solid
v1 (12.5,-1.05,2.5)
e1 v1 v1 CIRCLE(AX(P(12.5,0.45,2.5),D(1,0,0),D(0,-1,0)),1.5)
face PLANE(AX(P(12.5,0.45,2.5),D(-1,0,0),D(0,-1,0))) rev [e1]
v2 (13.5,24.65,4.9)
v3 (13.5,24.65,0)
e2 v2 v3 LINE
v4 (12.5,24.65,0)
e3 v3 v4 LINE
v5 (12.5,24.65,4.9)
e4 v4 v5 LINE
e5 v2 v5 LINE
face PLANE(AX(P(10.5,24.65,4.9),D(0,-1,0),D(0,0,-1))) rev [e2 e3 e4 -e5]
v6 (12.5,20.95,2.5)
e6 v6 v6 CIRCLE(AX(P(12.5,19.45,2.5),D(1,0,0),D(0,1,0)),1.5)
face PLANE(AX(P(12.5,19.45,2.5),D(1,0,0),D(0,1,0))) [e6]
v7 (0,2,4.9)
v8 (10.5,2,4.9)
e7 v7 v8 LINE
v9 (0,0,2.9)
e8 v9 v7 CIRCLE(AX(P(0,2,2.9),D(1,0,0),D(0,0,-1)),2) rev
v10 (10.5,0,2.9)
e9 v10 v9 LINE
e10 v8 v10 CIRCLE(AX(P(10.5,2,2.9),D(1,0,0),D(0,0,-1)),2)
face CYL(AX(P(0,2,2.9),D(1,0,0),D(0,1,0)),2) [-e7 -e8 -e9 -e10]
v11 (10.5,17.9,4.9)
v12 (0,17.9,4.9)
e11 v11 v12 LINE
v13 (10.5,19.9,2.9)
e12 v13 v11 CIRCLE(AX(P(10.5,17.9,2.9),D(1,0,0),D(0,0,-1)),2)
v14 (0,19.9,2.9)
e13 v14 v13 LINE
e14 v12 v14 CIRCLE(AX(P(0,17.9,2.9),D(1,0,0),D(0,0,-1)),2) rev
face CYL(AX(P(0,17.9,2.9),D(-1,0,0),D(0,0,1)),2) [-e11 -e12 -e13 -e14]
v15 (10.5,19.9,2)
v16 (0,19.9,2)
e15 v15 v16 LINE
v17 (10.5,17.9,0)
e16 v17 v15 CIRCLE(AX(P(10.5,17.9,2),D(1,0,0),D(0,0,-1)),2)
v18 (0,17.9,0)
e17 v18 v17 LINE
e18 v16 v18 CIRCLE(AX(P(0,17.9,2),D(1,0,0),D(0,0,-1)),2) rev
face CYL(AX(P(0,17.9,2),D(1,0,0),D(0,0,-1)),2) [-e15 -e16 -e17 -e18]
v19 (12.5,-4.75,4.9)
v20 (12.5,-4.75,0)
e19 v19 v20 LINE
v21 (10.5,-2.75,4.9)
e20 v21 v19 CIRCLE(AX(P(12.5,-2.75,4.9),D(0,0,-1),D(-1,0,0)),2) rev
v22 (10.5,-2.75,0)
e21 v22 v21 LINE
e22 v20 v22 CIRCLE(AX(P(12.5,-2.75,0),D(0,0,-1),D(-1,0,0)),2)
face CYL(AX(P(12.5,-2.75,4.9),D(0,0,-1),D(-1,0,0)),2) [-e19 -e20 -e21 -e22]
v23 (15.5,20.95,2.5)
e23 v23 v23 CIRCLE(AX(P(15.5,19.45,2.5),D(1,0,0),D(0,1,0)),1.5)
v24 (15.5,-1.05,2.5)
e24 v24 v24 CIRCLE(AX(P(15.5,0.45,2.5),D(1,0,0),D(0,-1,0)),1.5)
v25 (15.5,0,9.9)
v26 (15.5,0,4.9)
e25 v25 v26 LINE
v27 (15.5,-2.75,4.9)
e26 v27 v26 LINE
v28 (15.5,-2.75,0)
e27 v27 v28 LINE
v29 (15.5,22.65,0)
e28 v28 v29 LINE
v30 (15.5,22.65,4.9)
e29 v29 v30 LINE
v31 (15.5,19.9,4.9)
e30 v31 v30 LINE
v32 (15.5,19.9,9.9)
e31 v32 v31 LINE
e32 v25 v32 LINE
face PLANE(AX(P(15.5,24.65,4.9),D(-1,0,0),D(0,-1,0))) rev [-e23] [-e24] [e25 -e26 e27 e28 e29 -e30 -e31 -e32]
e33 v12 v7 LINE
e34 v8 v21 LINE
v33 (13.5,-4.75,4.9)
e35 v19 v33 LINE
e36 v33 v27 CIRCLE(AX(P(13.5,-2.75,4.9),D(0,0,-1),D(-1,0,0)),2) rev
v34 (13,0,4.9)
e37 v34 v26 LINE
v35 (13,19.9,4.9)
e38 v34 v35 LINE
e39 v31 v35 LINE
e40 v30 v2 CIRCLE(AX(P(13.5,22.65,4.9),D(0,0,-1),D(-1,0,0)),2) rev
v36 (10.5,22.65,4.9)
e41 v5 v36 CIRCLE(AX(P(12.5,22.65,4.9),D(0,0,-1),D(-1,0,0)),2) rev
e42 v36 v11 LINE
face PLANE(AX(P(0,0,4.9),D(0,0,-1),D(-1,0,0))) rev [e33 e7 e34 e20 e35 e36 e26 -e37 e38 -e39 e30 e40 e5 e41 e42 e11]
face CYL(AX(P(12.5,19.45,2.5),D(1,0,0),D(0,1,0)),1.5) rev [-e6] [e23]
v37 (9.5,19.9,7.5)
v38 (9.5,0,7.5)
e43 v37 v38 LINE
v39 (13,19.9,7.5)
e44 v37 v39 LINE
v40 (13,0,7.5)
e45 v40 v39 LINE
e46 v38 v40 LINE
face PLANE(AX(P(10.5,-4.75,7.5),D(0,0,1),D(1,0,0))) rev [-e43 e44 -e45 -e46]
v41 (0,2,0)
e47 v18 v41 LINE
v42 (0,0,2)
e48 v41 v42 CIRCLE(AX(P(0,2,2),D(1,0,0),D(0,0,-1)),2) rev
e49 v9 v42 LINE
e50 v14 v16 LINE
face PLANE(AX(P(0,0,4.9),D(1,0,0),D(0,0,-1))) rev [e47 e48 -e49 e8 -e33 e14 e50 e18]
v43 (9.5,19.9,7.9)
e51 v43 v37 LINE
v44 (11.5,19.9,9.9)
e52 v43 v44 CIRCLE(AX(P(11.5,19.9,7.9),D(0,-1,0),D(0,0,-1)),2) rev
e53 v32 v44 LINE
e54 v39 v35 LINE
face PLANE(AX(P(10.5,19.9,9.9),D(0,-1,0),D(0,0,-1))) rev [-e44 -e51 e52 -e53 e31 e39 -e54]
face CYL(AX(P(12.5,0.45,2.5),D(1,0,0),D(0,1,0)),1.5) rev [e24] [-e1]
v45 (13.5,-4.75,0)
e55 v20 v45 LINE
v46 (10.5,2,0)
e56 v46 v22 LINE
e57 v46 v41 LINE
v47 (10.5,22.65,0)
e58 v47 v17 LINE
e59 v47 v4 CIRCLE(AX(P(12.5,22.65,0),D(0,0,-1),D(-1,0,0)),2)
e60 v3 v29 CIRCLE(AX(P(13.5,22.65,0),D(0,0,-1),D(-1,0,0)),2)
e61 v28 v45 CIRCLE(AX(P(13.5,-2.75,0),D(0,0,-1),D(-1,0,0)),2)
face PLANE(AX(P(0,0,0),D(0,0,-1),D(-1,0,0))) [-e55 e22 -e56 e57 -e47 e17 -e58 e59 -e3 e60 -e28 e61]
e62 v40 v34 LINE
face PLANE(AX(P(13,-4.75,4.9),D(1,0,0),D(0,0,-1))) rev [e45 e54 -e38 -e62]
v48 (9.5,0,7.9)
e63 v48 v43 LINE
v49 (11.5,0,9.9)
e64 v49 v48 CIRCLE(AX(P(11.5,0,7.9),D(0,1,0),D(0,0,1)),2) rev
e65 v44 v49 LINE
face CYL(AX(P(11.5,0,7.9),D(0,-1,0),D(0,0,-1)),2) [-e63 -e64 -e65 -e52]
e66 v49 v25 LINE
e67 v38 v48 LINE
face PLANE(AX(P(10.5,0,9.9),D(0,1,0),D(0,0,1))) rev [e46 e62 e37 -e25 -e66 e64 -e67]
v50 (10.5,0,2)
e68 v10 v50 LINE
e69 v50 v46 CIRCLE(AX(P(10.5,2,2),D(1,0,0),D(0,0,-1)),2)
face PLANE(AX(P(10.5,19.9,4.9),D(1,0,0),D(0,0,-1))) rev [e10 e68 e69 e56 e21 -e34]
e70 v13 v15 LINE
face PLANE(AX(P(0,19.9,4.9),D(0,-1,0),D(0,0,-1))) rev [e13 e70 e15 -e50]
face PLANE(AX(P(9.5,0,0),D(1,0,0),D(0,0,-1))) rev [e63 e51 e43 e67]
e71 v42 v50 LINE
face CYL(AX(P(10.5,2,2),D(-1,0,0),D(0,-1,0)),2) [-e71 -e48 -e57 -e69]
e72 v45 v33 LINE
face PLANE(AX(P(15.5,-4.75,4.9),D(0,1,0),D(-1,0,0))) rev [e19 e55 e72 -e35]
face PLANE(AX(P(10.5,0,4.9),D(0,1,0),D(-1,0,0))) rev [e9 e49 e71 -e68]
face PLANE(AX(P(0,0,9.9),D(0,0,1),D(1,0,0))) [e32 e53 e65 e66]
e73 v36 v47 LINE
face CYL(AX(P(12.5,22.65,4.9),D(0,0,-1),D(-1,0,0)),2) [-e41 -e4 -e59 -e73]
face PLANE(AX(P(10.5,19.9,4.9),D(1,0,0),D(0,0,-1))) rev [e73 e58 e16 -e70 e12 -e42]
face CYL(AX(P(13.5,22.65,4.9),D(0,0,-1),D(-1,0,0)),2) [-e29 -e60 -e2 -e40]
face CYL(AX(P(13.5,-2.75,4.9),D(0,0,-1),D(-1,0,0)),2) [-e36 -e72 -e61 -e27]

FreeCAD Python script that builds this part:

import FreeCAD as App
import Part
import Sketcher
from FreeCAD import Vector


def edges_at(feature, points):
    """Names of the edges that pass closest to the given points."""
    edges = feature.Shape.Edges
    near = lambda p: min(range(len(edges)), key=lambda i: edges[i].distToShape(Part.Vertex(*p))[0])
    return sorted({f"Edge{near(p) + 1}" for p in points})

doc = App.newDocument("Part")
body = doc.addObject("PartDesign::Body", "Body")

# Sketch on XY plane
sketch1 = body.newObject("Sketcher::SketchObject", "Sketch")
sketch1.AttachmentSupport = (doc.getObject("XY_Plane"), [""])
sketch1.MapMode = "FlatFace"
sketch1.addGeometry([
    Part.LineSegment(Vector(0, 19.9, 0), Vector(0, 0, 0)),  # 0
    Part.LineSegment(Vector(0, 0, 0), Vector(10.5, 0, 0)),  # 1
    Part.LineSegment(Vector(10.5, 0, 0), Vector(10.5, -4.75, 0)),  # 2
    Part.LineSegment(Vector(10.5, -4.75, 0), Vector(15.5, -4.75, 0)),  # 3
    Part.LineSegment(Vector(15.5, -4.75, 0), Vector(15.5, 24.65, 0)),  # 4
    Part.LineSegment(Vector(15.5, 24.65, 0), Vector(10.5, 24.65, 0)),  # 5
    Part.LineSegment(Vector(10.5, 24.65, 0), Vector(10.5, 19.9, 0)),  # 6
    Part.LineSegment(Vector(10.5, 19.9, 0), Vector(0, 19.9, 0)),  # 7
], False)
sketch1.addConstraint([
    Sketcher.Constraint("Coincident", 0, 2, 1, 1),
    Sketcher.Constraint("Coincident", 1, 2, 2, 1),
    Sketcher.Constraint("Coincident", 2, 2, 3, 1),
    Sketcher.Constraint("Coincident", 3, 2, 4, 1),
    Sketcher.Constraint("Coincident", 4, 2, 5, 1),
    Sketcher.Constraint("Coincident", 5, 2, 6, 1),
    Sketcher.Constraint("Coincident", 6, 2, 7, 1),
    Sketcher.Constraint("Coincident", 7, 2, 0, 1),
    Sketcher.Constraint("Vertical", 0),
    Sketcher.Constraint("Horizontal", 1),
    Sketcher.Constraint("Vertical", 2),
    Sketcher.Constraint("Horizontal", 3),
    Sketcher.Constraint("Vertical", 4),
    Sketcher.Constraint("Horizontal", 5),
    Sketcher.Constraint("Vertical", 6),
    Sketcher.Constraint("Horizontal", 7),
    Sketcher.Constraint("Coincident", 0, 2, -1, 1),
    Sketcher.Constraint("Vertical", 2, 2, 5, 2),
    Sketcher.Constraint("Equal", 2, 6),
    Sketcher.Constraint("DistanceX", 3, 1, 3, 2, 5.0),
    Sketcher.Constraint("DistanceX", 1, 1, 1, 2, 10.5),
    Sketcher.Constraint("DistanceY", 0, 2, 0, 1, 19.9),
    Sketcher.Constraint("DistanceY", 4, 1, 4, 2, 29.4),
])
pad1 = body.newObject("PartDesign::Pad", "Pad")
pad1.Profile = sketch1
pad1.Length = 4.9
doc.recompute()

fillet = body.newObject("PartDesign::Fillet", "Fillet")
fillet.Base = (pad1, edges_at(pad1, [
    (5.25, 0, 0),
    (5.25, 19.9, 4.9),
    (5.25, 0, 4.9),
    (5.25, 19.9, 0),
]))
fillet.Radius = 2

# Sketch on YZ plane
sketch2 = body.newObject("Sketcher::SketchObject", "Sketch001")
sketch2.AttachmentSupport = (doc.getObject("YZ_Plane"), [""])
sketch2.MapMode = "FlatFace"
sketch2.AttachmentOffset = App.Placement(Vector(0, 0, 15.5), App.Rotation())
sketch2.addGeometry([
    Part.Circle(Vector(19.45, 2.5, 0), Vector(0, 0, 1), 1.5),
    Part.Circle(Vector(0.45, 2.5, 0), Vector(0, 0, 1), 1.5),
], False)
sketch2.addConstraint([
    Sketcher.Constraint("Equal", 0, 1),
    Sketcher.Constraint("Horizontal", 0, 3, 1, 3),
    Sketcher.Constraint("Diameter", 0, 3.0),
    Sketcher.Constraint("DistanceX", 1, 3, 0, 3, 19.0),
    Sketcher.Constraint("DistanceY", -1, 1, 0, 3, 2.5),
    Sketcher.Constraint("DistanceX", -1, 1, 0, 3, 19.45),
])
pocket1 = body.newObject("PartDesign::Pocket", "Pocket")
pocket1.Profile = sketch2
pocket1.Length = 3

# Sketch on XY plane
sketch3 = body.newObject("Sketcher::SketchObject", "Sketch002")
sketch3.AttachmentSupport = (doc.getObject("XY_Plane"), [""])
sketch3.MapMode = "FlatFace"
sketch3.AttachmentOffset = App.Placement(Vector(0, 0, 4.9), App.Rotation())
sketch3.addGeometry([
    Part.LineSegment(Vector(10.5, 19.9, 0), Vector(10.5, 0, 0)),
    Part.LineSegment(Vector(10.5, 0, 0), Vector(15.5, 0, 0)),
    Part.LineSegment(Vector(15.5, 0, 0), Vector(15.5, 19.9, 0)),
    Part.LineSegment(Vector(15.5, 19.9, 0), Vector(10.5, 19.9, 0)),
], False)
sketch3.addConstraint([
    Sketcher.Constraint("Coincident", 0, 2, 1, 1),
    Sketcher.Constraint("Coincident", 1, 2, 2, 1),
    Sketcher.Constraint("Coincident", 2, 2, 3, 1),
    Sketcher.Constraint("Coincident", 3, 2, 0, 1),
    Sketcher.Constraint("Vertical", 0),
    Sketcher.Constraint("Horizontal", 1),
    Sketcher.Constraint("Vertical", 2),
    Sketcher.Constraint("Horizontal", 3),
    Sketcher.Constraint("PointOnObject", 0, 2, -1),
    Sketcher.Constraint("DistanceX", 1, 1, 1, 2, 5.0),
    Sketcher.Constraint("DistanceY", 0, 2, 0, 1, 19.9),
    Sketcher.Constraint("DistanceX", -1, 1, 0, 2, 10.5),
])
pad2 = body.newObject("PartDesign::Pad", "Pad001")
pad2.Profile = sketch3
pad2.Length = 5

# Sketch on XZ plane
sketch4 = body.newObject("Sketcher::SketchObject", "Sketch003")
sketch4.AttachmentSupport = (doc.getObject("XZ_Plane"), [""])
sketch4.MapMode = "FlatFace"
sketch4.AttachmentOffset = App.Placement(Vector(0, 0, -19.9), App.Rotation())
sketch4.addGeometry([
    Part.LineSegment(Vector(10.5, 4.9, 0), Vector(10.5, 7.5, 0)),
    Part.LineSegment(Vector(10.5, 7.5, 0), Vector(13, 7.5, 0)),
    Part.LineSegment(Vector(13, 7.5, 0), Vector(13, 4.9, 0)),
    Part.LineSegment(Vector(13, 4.9, 0), Vector(10.5, 4.9, 0)),
], False)
sketch4.addConstraint([
    Sketcher.Constraint("Coincident", 0, 2, 1, 1),
    Sketcher.Constraint("Coincident", 1, 2, 2, 1),
    Sketcher.Constraint("Coincident", 2, 2, 3, 1),
    Sketcher.Constraint("Coincident", 3, 2, 0, 1),
    Sketcher.Constraint("Vertical", 0),
    Sketcher.Constraint("Horizontal", 1),
    Sketcher.Constraint("Vertical", 2),
    Sketcher.Constraint("Horizontal", 3),
    Sketcher.Constraint("DistanceX", 1, 1, 1, 2, 2.5),
    Sketcher.Constraint("DistanceY", 0, 1, 0, 2, 2.6),
    Sketcher.Constraint("DistanceX", -1, 1, 1, 2, 13.0),
    Sketcher.Constraint("DistanceY", -1, 1, 0, 2, 7.5),
])
pocket2 = body.newObject("PartDesign::Pocket", "Pocket001")
pocket2.Profile = sketch4
pocket2.Type = "ThroughAll"
pocket2.Reversed = True
doc.recompute()

fillet2 = body.newObject("PartDesign::Fillet", "Fillet001")
fillet2.Base = (pocket2, edges_at(pocket2, [
    (10.5, 24.65, 2.45),
    (15.5, 24.65, 2.45),
    (15.5, -4.75, 2.45),
    (10.5, -4.75, 2.45),
]))
fillet2.Radius = 2

# Sketch on YZ plane
sketch5 = body.newObject("Sketcher::SketchObject", "Sketch004")
sketch5.AttachmentSupport = (doc.getObject("YZ_Plane"), [""])
sketch5.MapMode = "FlatFace"
sketch5.AttachmentOffset = App.Placement(Vector(0, 0, 10.5), App.Rotation())
sketch5.addGeometry([
    Part.LineSegment(Vector(19.9, 7.5, 0), Vector(0, 7.5, 0)),
    Part.LineSegment(Vector(0, 7.5, 0), Vector(0, 9.9, 0)),
    Part.LineSegment(Vector(0, 9.9, 0), Vector(19.9, 9.9, 0)),
    Part.LineSegment(Vector(19.9, 9.9, 0), Vector(19.9, 7.5, 0)),
], False)
sketch5.addConstraint([
    Sketcher.Constraint("Coincident", 0, 2, 1, 1),
    Sketcher.Constraint("Coincident", 1, 2, 2, 1),
    Sketcher.Constraint("Coincident", 2, 2, 3, 1),
    Sketcher.Constraint("Coincident", 3, 2, 0, 1),
    Sketcher.Constraint("Horizontal", 0),
    Sketcher.Constraint("Vertical", 1),
    Sketcher.Constraint("Horizontal", 2),
    Sketcher.Constraint("Vertical", 3),
    Sketcher.Constraint("PointOnObject", 0, 2, -2),
    Sketcher.Constraint("DistanceX", 0, 2, 0, 1, 19.9),
    Sketcher.Constraint("DistanceY", 1, 1, 1, 2, 2.4),
    Sketcher.Constraint("DistanceY", -1, 1, 0, 2, 7.5),
])
pad3 = body.newObject("PartDesign::Pad", "Pad002")
pad3.Profile = sketch5
pad3.Length = 1
pad3.Reversed = True
doc.recompute()

fillet3 = body.newObject("PartDesign::Fillet", "Fillet002")
fillet3.Base = (pad3, edges_at(pad3, [(9.5, 9.95, 9.9)]))
fillet3.Radius = 2

doc.recompute()
